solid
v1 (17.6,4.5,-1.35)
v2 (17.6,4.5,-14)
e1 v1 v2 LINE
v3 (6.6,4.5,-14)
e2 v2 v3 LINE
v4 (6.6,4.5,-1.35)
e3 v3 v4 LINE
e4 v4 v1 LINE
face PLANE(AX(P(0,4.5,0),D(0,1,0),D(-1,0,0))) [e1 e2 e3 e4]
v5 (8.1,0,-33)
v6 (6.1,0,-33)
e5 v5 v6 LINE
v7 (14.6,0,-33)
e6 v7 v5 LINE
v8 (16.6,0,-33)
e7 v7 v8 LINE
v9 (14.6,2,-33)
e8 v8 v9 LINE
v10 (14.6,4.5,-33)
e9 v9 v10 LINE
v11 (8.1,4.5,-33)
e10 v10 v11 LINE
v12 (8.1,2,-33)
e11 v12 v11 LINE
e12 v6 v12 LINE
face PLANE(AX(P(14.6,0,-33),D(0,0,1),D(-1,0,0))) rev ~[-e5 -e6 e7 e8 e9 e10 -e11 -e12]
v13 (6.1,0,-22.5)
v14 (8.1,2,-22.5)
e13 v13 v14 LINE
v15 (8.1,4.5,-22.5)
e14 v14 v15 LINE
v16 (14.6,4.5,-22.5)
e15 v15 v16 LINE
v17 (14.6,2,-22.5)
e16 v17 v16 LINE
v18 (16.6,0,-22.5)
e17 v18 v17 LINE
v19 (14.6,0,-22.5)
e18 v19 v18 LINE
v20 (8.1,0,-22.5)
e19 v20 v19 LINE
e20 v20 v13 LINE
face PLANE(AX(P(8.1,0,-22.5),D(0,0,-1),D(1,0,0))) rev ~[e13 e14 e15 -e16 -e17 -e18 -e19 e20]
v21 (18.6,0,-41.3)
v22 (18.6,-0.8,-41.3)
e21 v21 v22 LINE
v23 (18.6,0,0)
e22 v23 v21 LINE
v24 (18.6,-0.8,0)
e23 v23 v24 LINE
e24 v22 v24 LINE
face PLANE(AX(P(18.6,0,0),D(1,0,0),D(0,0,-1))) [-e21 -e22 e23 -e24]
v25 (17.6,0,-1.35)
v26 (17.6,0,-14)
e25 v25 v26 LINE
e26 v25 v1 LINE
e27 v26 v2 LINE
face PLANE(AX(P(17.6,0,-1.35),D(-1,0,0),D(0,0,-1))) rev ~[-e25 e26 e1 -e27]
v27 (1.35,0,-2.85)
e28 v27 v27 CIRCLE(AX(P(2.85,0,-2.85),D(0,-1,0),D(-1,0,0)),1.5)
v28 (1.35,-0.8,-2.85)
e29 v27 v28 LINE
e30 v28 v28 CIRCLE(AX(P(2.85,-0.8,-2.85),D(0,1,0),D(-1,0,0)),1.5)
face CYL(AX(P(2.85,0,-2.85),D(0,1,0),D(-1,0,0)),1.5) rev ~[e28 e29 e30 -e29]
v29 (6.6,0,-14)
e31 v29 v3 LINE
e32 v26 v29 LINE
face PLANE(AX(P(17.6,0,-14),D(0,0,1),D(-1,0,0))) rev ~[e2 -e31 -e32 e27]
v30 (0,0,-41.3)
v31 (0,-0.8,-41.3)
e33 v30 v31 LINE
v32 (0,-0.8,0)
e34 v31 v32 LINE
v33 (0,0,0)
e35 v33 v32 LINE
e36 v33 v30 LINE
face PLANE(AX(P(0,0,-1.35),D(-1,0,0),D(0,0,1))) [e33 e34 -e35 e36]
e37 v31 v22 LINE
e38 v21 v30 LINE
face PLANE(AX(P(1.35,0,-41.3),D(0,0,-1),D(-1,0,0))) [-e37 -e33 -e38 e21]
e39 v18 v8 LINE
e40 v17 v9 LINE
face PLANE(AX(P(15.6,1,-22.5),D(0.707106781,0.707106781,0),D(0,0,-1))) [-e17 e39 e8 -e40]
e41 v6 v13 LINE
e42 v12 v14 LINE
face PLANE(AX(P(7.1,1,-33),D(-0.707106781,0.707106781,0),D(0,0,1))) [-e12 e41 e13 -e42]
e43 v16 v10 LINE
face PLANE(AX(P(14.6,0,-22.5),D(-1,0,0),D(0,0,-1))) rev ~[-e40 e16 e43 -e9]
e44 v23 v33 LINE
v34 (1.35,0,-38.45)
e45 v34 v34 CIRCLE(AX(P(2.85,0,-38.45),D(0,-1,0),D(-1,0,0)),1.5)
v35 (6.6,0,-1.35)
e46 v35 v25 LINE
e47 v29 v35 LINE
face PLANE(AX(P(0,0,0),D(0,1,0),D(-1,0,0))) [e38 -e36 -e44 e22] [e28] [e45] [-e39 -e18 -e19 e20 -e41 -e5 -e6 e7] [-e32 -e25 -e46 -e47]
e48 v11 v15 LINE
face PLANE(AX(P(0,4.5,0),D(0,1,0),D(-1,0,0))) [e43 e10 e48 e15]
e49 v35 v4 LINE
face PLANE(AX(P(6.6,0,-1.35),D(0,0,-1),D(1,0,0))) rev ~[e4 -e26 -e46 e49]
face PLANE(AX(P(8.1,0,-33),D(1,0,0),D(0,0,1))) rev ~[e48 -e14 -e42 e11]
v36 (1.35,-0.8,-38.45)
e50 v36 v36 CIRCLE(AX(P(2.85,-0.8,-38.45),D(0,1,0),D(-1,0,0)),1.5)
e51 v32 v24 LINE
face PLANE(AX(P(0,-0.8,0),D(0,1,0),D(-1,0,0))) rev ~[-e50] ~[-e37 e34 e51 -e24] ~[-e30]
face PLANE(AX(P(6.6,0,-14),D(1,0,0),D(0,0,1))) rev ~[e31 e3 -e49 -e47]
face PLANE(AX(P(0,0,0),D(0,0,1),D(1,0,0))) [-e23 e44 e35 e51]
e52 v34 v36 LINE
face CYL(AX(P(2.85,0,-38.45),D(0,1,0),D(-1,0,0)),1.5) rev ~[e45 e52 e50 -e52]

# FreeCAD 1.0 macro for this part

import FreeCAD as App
import Part
import Sketcher

V = App.Vector


def edges_at(feature, points):
    """Names of the edges that pass closest to the given points."""
    edges = feature.Shape.Edges
    near = lambda p: min(range(len(edges)), key=lambda i: edges[i].distToShape(Part.Vertex(*p))[0])
    return sorted({f"Edge{near(p) + 1}" for p in points})

doc = App.newDocument("Part")
params = doc.addObject("Spreadsheet::Sheet", "Params")
for row, (alias, value) in enumerate([
    ("sketch1_diameter", "3 mm"),
    ("sketch1_width", "18.6 mm"),
    ("sketch1_height", "41.3 mm"),
    ("pad1_length", "0.8 mm"),
    ("sketch2_width", "11 mm"),
    ("pad2_length", "4.5 mm"),
    ("sketch3_width", "6.5 mm"),
    ("sketch3_height", "10.5 mm"),
    ("pad3_length", "4.5 mm"),
    ("chamfer_size", "2 mm"),
], start=1):
    params.set(f"A{row}", alias)
    params.set(f"B{row}", "=" + value)
    params.setAlias(f"B{row}", alias)

body = doc.addObject("PartDesign::Body", "Body")

# Sketch on XZ plane
sketch1 = body.newObject("Sketcher::SketchObject", "Sketch")
sketch1.AttachmentSupport = (doc.getObject("XZ_Plane"), [""])
sketch1.MapMode = "FlatFace"
sketch1.addGeometry(Part.LineSegment(V(0, 0, 0), V(18.6, 0, 0)), False)
sketch1.addGeometry(Part.LineSegment(V(18.6, 0, 0), V(18.6, -41.3, 0)), False)
sketch1.addGeometry(Part.LineSegment(V(18.6, -41.3, 0), V(0, -41.3, 0)), False)
sketch1.addGeometry(Part.LineSegment(V(0, -41.3, 0), V(0, 0, 0)), False)
sketch1.addGeometry(Part.Circle(V(2.85, -38.45, 0), V(0, 0, 1), 1.5), False)
sketch1.addGeometry(Part.Circle(V(2.85, -2.85, 0), V(0, 0, 1), 1.5), False)
sketch1.addConstraint(Sketcher.Constraint("Coincident", 0, 2, 1, 1))
sketch1.addConstraint(Sketcher.Constraint("Coincident", 1, 2, 2, 1))
sketch1.addConstraint(Sketcher.Constraint("Coincident", 2, 2, 3, 1))
sketch1.addConstraint(Sketcher.Constraint("Coincident", 3, 2, 0, 1))
sketch1.addConstraint(Sketcher.Constraint("Horizontal", 0))
sketch1.addConstraint(Sketcher.Constraint("Vertical", 1))
sketch1.addConstraint(Sketcher.Constraint("Horizontal", 2))
sketch1.addConstraint(Sketcher.Constraint("Vertical", 3))
sketch1.addConstraint(Sketcher.Constraint("Coincident", 3, 2, -1, 1))
sketch1.addConstraint(Sketcher.Constraint("Equal", 4, 5))
sketch1.addConstraint(Sketcher.Constraint("Vertical", 4, 3, 5, 3))
sketch1.addConstraint(Sketcher.Constraint("Diameter", 4, 3.0))
sketch1.addConstraint(Sketcher.Constraint("DistanceX", 0, 1, 0, 2, 18.6))
sketch1.addConstraint(Sketcher.Constraint("DistanceY", 1, 2, 1, 1, 41.3))
sketch1.addConstraint(Sketcher.Constraint("DistanceY", 4, 3, 5, 3, 35.6))
sketch1.addConstraint(Sketcher.Constraint("DistanceX", -1, 1, 4, 3, 2.85))
sketch1.addConstraint(Sketcher.Constraint("DistanceY", 4, 3, -1, 1, 38.45))
sketch1.setExpression("Constraints[11]", "Params.sketch1_diameter")
sketch1.setExpression("Constraints[12]", "Params.sketch1_width")
sketch1.setExpression("Constraints[13]", "Params.sketch1_height")
pad1 = body.newObject("PartDesign::Pad", "Pad")
pad1.Profile = sketch1
pad1.setExpression("Length", "Params.pad1_length")

# Sketch on XZ plane
sketch2 = body.newObject("Sketcher::SketchObject", "Sketch001")
sketch2.AttachmentSupport = (doc.getObject("XZ_Plane"), [""])
sketch2.MapMode = "FlatFace"
sketch2.addGeometry(Part.LineSegment(V(6.6, -1.35, 0), V(17.6, -1.35, 0)), False)
sketch2.addGeometry(Part.LineSegment(V(17.6, -1.35, 0), V(17.6, -14, 0)), False)
sketch2.addGeometry(Part.LineSegment(V(17.6, -14, 0), V(6.6, -14, 0)), False)
sketch2.addGeometry(Part.LineSegment(V(6.6, -14, 0), V(6.6, -1.35, 0)), False)
sketch2.addConstraint(Sketcher.Constraint("Coincident", 0, 2, 1, 1))
sketch2.addConstraint(Sketcher.Constraint("Coincident", 1, 2, 2, 1))
sketch2.addConstraint(Sketcher.Constraint("Coincident", 2, 2, 3, 1))
sketch2.addConstraint(Sketcher.Constraint("Coincident", 3, 2, 0, 1))
sketch2.addConstraint(Sketcher.Constraint("Horizontal", 0))
sketch2.addConstraint(Sketcher.Constraint("Vertical", 1))
sketch2.addConstraint(Sketcher.Constraint("Horizontal", 2))
sketch2.addConstraint(Sketcher.Constraint("Vertical", 3))
sketch2.addConstraint(Sketcher.Constraint("DistanceX", 0, 1, 0, 2, 11.0))
sketch2.addConstraint(Sketcher.Constraint("DistanceY", 0, 2, -1, 1, 1.35))
sketch2.addConstraint(Sketcher.Constraint("DistanceY", 1, 2, -1, 1, 14.0))
sketch2.addConstraint(Sketcher.Constraint("DistanceX", -1, 1, 0, 2, 17.6))
sketch2.setExpression("Constraints[8]", "Params.sketch2_width")
pad2 = body.newObject("PartDesign::Pad", "Pad001")
pad2.Profile = sketch2
pad2.setExpression("Length", "Params.pad2_length")
pad2.Reversed = True

# Sketch on XZ plane
sketch3 = body.newObject("Sketcher::SketchObject", "Sketch002")
sketch3.AttachmentSupport = (doc.getObject("XZ_Plane"), [""])
sketch3.MapMode = "FlatFace"
sketch3.addGeometry(Part.LineSegment(V(8.1, -33, 0), V(8.1, -22.5, 0)), False)
sketch3.addGeometry(Part.LineSegment(V(8.1, -22.5, 0), V(14.6, -22.5, 0)), False)
sketch3.addGeometry(Part.LineSegment(V(14.6, -22.5, 0), V(14.6, -33, 0)), False)
sketch3.addGeometry(Part.LineSegment(V(14.6, -33, 0), V(8.1, -33, 0)), False)
sketch3.addConstraint(Sketcher.Constraint("Coincident", 0, 2, 1, 1))
sketch3.addConstraint(Sketcher.Constraint("Coincident", 1, 2, 2, 1))
sketch3.addConstraint(Sketcher.Constraint("Coincident", 2, 2, 3, 1))
sketch3.addConstraint(Sketcher.Constraint("Coincident", 3, 2, 0, 1))
sketch3.addConstraint(Sketcher.Constraint("Vertical", 0))
sketch3.addConstraint(Sketcher.Constraint("Horizontal", 1))
sketch3.addConstraint(Sketcher.Constraint("Vertical", 2))
sketch3.addConstraint(Sketcher.Constraint("Horizontal", 3))
sketch3.addConstraint(Sketcher.Constraint("DistanceX", 1, 1, 1, 2, 6.5))
sketch3.addConstraint(Sketcher.Constraint("DistanceY", 0, 1, 0, 2, 10.5))
sketch3.addConstraint(Sketcher.Constraint("DistanceX", -1, 1, 0, 2, 8.1))
sketch3.addConstraint(Sketcher.Constraint("DistanceY", 2, 2, -1, 1, 33.0))
sketch3.setExpression("Constraints[8]", "Params.sketch3_width")
sketch3.setExpression("Constraints[9]", "Params.sketch3_height")
pad3 = body.newObject("PartDesign::Pad", "Pad002")
pad3.Profile = sketch3
pad3.setExpression("Length", "Params.pad3_length")
pad3.Reversed = True
doc.recompute()

chamfer = body.newObject("PartDesign::Chamfer", "Chamfer")
chamfer.Base = (pad3, edges_at(pad3, [(8.1, 0, -27.75), (14.6, 0, -27.75)]))
chamfer.setExpression("Size", "Params.chamfer_size")

doc.recompute()
